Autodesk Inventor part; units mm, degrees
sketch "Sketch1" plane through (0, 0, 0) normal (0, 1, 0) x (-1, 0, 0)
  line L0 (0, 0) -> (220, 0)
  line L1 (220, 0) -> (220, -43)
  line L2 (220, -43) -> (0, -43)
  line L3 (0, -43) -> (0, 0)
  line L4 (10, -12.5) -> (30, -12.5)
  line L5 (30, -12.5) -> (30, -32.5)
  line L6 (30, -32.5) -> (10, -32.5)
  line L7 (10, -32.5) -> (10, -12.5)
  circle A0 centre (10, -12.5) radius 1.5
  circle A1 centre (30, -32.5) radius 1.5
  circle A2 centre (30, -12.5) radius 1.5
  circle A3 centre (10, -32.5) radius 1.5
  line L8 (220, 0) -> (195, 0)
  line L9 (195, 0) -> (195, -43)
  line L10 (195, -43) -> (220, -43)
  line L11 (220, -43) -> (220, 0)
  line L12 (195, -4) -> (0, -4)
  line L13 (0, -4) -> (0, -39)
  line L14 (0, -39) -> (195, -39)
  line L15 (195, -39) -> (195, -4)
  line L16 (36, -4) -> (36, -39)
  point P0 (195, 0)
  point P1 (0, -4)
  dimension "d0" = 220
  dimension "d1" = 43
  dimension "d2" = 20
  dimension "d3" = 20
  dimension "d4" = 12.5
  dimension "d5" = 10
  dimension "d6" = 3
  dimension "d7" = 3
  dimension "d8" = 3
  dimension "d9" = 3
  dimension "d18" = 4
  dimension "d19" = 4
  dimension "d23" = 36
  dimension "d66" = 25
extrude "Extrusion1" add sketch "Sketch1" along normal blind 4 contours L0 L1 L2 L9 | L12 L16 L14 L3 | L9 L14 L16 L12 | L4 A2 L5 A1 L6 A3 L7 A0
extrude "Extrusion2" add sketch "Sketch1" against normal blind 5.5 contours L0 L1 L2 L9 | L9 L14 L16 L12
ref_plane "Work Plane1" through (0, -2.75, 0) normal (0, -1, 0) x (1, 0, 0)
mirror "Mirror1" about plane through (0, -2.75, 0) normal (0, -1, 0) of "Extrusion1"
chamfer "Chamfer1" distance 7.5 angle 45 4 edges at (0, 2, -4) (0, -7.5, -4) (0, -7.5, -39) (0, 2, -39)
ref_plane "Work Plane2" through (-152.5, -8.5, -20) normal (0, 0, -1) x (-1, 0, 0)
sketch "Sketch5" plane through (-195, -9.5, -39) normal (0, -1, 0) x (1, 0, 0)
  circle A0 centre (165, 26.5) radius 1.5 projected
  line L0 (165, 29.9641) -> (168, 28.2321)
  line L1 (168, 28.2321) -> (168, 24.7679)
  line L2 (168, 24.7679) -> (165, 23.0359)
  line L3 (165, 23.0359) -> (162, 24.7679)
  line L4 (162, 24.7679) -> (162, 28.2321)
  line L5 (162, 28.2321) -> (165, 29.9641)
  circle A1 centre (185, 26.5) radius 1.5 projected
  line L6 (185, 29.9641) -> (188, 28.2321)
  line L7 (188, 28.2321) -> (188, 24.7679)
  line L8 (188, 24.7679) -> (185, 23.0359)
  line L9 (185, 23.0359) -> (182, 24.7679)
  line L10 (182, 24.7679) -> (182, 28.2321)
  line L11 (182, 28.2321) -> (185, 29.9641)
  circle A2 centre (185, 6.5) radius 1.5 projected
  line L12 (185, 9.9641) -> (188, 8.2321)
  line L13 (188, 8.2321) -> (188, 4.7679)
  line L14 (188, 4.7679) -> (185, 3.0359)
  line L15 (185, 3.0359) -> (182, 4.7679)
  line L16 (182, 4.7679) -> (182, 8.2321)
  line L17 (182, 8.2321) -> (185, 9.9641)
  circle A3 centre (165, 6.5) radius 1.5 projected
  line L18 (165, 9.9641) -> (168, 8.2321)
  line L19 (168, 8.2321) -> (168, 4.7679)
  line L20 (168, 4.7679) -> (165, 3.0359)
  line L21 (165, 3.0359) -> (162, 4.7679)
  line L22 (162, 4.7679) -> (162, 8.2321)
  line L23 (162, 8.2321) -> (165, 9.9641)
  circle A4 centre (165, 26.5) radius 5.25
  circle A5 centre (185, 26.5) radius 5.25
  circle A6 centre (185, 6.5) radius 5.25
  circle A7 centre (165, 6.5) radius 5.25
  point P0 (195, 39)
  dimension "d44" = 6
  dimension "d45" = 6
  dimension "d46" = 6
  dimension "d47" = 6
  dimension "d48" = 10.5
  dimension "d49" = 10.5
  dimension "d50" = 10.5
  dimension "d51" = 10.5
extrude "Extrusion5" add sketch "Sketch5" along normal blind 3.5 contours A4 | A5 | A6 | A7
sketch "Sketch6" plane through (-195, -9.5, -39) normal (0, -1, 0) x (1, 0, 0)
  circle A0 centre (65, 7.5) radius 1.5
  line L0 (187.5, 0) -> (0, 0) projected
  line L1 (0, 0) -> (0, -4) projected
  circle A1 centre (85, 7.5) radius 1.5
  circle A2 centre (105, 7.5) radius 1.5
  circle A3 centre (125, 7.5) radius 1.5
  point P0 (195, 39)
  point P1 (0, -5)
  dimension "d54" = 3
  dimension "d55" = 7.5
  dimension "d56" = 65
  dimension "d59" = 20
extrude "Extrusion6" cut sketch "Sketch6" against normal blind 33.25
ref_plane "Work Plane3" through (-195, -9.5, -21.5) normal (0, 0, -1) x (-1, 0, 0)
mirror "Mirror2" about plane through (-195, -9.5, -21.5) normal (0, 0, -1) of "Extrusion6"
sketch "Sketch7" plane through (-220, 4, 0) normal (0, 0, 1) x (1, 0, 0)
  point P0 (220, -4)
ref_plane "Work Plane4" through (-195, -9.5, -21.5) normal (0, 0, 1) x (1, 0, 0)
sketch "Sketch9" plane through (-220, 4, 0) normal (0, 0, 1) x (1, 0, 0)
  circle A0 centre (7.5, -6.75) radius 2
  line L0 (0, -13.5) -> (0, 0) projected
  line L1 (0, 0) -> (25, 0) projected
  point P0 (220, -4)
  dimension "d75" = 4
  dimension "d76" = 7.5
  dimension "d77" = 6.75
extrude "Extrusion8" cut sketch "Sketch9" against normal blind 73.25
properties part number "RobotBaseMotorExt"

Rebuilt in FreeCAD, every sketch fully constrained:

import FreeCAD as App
import Part
import Sketcher
Q = App.Units.Quantity


def edges_at(feature, points):
    """Names of the edges that pass closest to the given points."""
    edges = feature.Shape.Edges
    near = lambda p: min(range(len(edges)), key=lambda i: edges[i].distToShape(Part.Vertex(*p))[0])
    return sorted({f"Edge{near(p) + 1}" for p in points})


def add_polygon(sketch, points):
    """Adds a closed chain of lines whose ends are joined by coincident constraints."""
    first, n = sketch.GeometryCount, len(points)
    for a, b in zip(points, points[1:] + points[:1]):
        sketch.addGeometry(Part.LineSegment(App.Vector(*a, 0), App.Vector(*b, 0)), False)
    for i in range(n):
        sketch.addConstraint(Sketcher.Constraint("Coincident", first + i, 2, first + (i + 1) % n, 1))

doc = App.newDocument("Part")
body = doc.addObject("PartDesign::Body", "Body")

# Sketch on XZ plane
sketch1 = body.newObject("Sketcher::SketchObject", "Sketch")
sketch1.AttachmentSupport = (doc.getObject("XZ_Plane"), [""])
sketch1.MapMode = "FlatFace"
add_polygon(sketch1, [(-220, 0), (-195, 0), (-195, -4), (0, -4), (0, -39), (-195, -39), (-195, -43), (-220, -43)])  # lines 0-7
sketch1.addGeometry(Part.Circle(App.Vector(-10, -12.5, 0), App.Vector(0, 0, 1), 1.5), False)  # 8
sketch1.addGeometry(Part.Circle(App.Vector(-10, -32.5, 0), App.Vector(0, 0, 1), 1.5), False)  # 9
sketch1.addGeometry(Part.Circle(App.Vector(-30, -32.5, 0), App.Vector(0, 0, 1), 1.5), False)  # 10
sketch1.addGeometry(Part.Circle(App.Vector(-30, -12.5, 0), App.Vector(0, 0, 1), 1.5), False)  # 11
sketch1.addConstraint([
    Sketcher.Constraint("Horizontal", 0),
    Sketcher.Constraint("Vertical", 1),
    Sketcher.Constraint("Horizontal", 2),
    Sketcher.Constraint("Vertical", 3),
    Sketcher.Constraint("Horizontal", 4),
    Sketcher.Constraint("Vertical", 5),
    Sketcher.Constraint("Horizontal", 6),
    Sketcher.Constraint("Vertical", 7),
    Sketcher.Constraint("Equal", 8, 9),
    Sketcher.Constraint("Equal", 9, 10),
    Sketcher.Constraint("Equal", 10, 11),
    Sketcher.Constraint("PointOnObject", 0, 2, -1),
    Sketcher.Constraint("PointOnObject", 2, 2, -2),
    Sketcher.Constraint("Horizontal", 9, 3, 10, 3),
    Sketcher.Constraint("Horizontal", 8, 3, 11, 3),
    Sketcher.Constraint("Vertical", 8, 3, 9, 3),
    Sketcher.Constraint("Vertical", 10, 3, 11, 3),
    Sketcher.Constraint("Vertical", 1, 2, 4, 2),
    Sketcher.Constraint("Equal", 1, 5),
    Sketcher.Constraint("Diameter", 8, 3.0),
    Sketcher.Constraint("DistanceX", 0, 1, 0, 2, 25.0),
    Sketcher.Constraint("DistanceY", 1, 2, 1, 1, 4.0),
    Sketcher.Constraint("DistanceY", 7, 1, 7, 2, 43.0),
    Sketcher.Constraint("DistanceX", 8, 3, -1, 1, 10.0),
    Sketcher.Constraint("DistanceX", 6, 2, -1, 1, 220.0),
    Sketcher.Constraint("DistanceY", 9, 3, 8, 3, 20.0),
    Sketcher.Constraint("DistanceX", 10, 3, 9, 3, 20.0),
    Sketcher.Constraint("DistanceY", 8, 3, -1, 1, 12.5),
])
pad1 = body.newObject("PartDesign::Pad", "Pad")
pad1.Profile = sketch1
pad1.Length = 4
pad1.Reversed = True

# Sketch on XZ plane
sketch2 = body.newObject("Sketcher::SketchObject", "Sketch001")
sketch2.AttachmentSupport = (doc.getObject("XZ_Plane"), [""])
sketch2.MapMode = "FlatFace"
add_polygon(sketch2, [(-220, 0), (-195, 0), (-195, -4), (-36, -4), (-36, -39), (-195, -39), (-195, -43), (-220, -43)])  # lines 0-7
sketch2.addConstraint([
    Sketcher.Constraint("Horizontal", 0),
    Sketcher.Constraint("Vertical", 1),
    Sketcher.Constraint("Horizontal", 2),
    Sketcher.Constraint("Vertical", 3),
    Sketcher.Constraint("Horizontal", 4),
    Sketcher.Constraint("Vertical", 5),
    Sketcher.Constraint("Horizontal", 6),
    Sketcher.Constraint("Vertical", 7),
    Sketcher.Constraint("PointOnObject", 0, 2, -1),
    Sketcher.Constraint("Vertical", 1, 2, 4, 2),
    Sketcher.Constraint("Equal", 1, 5),
    Sketcher.Constraint("DistanceX", 0, 1, 0, 2, 25.0),
    Sketcher.Constraint("DistanceY", 1, 2, 1, 1, 4.0),
    Sketcher.Constraint("DistanceY", 7, 1, 7, 2, 43.0),
    Sketcher.Constraint("DistanceX", 2, 2, -1, 1, 36.0),
    Sketcher.Constraint("DistanceX", 6, 2, -1, 1, 220.0),
])
pad2 = body.newObject("PartDesign::Pad", "Pad001")
pad2.Profile = sketch2
pad2.Length = 5.5
doc.recompute()

datumplane = body.newObject("PartDesign::Plane", "DatumPlane")
datumplane.AttachmentSupport = (doc.getObject("XZ_Plane"), [""])
datumplane.MapMode = "FlatFace"
datumplane.AttachmentOffset = App.Placement(App.Vector(0, 0, 2.75), App.Rotation())
mirrored = body.newObject("PartDesign::Mirrored", "Mirrored")
mirrored.Originals = [pad1]
mirrored.MirrorPlane = (datumplane, [""])
body.Tip = mirrored
doc.recompute()

chamfer = body.newObject("PartDesign::Chamfer", "Chamfer")
chamfer.Base = (mirrored, edges_at(mirrored, [
    (0, 2, -4),
    (0, -7.5, -4),
    (0, -7.5, -39),
    (0, 2, -39),
]))
chamfer.Size = 7.5

# Sketch on XZ plane
sketch3 = body.newObject("Sketcher::SketchObject", "Sketch002")
sketch3.AttachmentSupport = (doc.getObject("XZ_Plane"), [""])
sketch3.MapMode = "FlatFace"
sketch3.AttachmentOffset = App.Placement(App.Vector(0, 0, 9.5), App.Rotation())
sketch3.addGeometry(Part.Circle(App.Vector(-30, -12.5, 0), App.Vector(0, 0, 1), 5.2), False)  # 0
add_polygon(sketch3, [(-33, -10.8), (-30, -9), (-27, -10.8), (-27, -14.2), (-30, -16), (-33, -14.2)])  # lines 1-6
sketch3.addGeometry(Part.Circle(App.Vector(-10, -12.5, 0), App.Vector(0, 0, 1), 5.2), False)  # 7
add_polygon(sketch3, [(-13, -10.8), (-10, -9), (-7, -10.8), (-7, -14.2), (-10, -16), (-13, -14.2)])  # lines 8-13
sketch3.addGeometry(Part.Circle(App.Vector(-10, -32.5, 0), App.Vector(0, 0, 1), 5.2), False)  # 14
add_polygon(sketch3, [(-13, -30.8), (-10, -29), (-7, -30.8), (-7, -34.2), (-10, -36), (-13, -34.2)])  # lines 15-20
sketch3.addGeometry(Part.Circle(App.Vector(-30, -32.5, 0), App.Vector(0, 0, 1), 5.2), False)  # 21
add_polygon(sketch3, [(-33, -30.8), (-30, -29), (-27, -30.8), (-27, -34.2), (-30, -36), (-33, -34.2)])  # lines 22-27
sketch3.addConstraint([
    Sketcher.Constraint("Vertical", 3),
    Sketcher.Constraint("Vertical", 6),
    Sketcher.Constraint("Vertical", 10),
    Sketcher.Constraint("Vertical", 13),
    Sketcher.Constraint("Vertical", 17),
    Sketcher.Constraint("Vertical", 20),
    Sketcher.Constraint("Vertical", 24),
    Sketcher.Constraint("Vertical", 27),
    Sketcher.Constraint("Equal", 0, 7),
    Sketcher.Constraint("Equal", 7, 14),
    Sketcher.Constraint("Equal", 14, 21),
    Sketcher.Constraint("Parallel", 1, 4),
    Sketcher.Constraint("Parallel", 2, 5),
    Sketcher.Constraint("Parallel", 4, 8),
    Sketcher.Constraint("Parallel", 5, 9),
    Sketcher.Constraint("Parallel", 8, 11),
    Sketcher.Constraint("Parallel", 9, 12),
    Sketcher.Constraint("Parallel", 11, 15),
    Sketcher.Constraint("Parallel", 12, 16),
    Sketcher.Constraint("Parallel", 15, 18),
    Sketcher.Constraint("Parallel", 16, 19),
    Sketcher.Constraint("Parallel", 18, 22),
    Sketcher.Constraint("Parallel", 19, 23),
    Sketcher.Constraint("Parallel", 22, 25),
    Sketcher.Constraint("Parallel", 23, 26),
    Sketcher.Constraint("Horizontal", 0, 3, 7, 3),
    Sketcher.Constraint("Horizontal", 14, 3, 21, 3),
    Sketcher.Constraint("Horizontal", 3, 2, 5, 2),
    Sketcher.Constraint("Horizontal", 2, 2, 6, 2),
    Sketcher.Constraint("Horizontal", 1, 2, 8, 2),
    Sketcher.Constraint("Horizontal", 6, 2, 9, 2),
    Sketcher.Constraint("Horizontal", 5, 2, 10, 2),
    Sketcher.Constraint("Horizontal", 4, 2, 11, 2),
    Sketcher.Constraint("Horizontal", 10, 2, 12, 2),
    Sketcher.Constraint("Horizontal", 17, 2, 19, 2),
    Sketcher.Constraint("Horizontal", 16, 2, 20, 2),
    Sketcher.Constraint("Horizontal", 15, 2, 22, 2),
    Sketcher.Constraint("Horizontal", 20, 2, 23, 2),
    Sketcher.Constraint("Horizontal", 19, 2, 24, 2),
    Sketcher.Constraint("Horizontal", 18, 2, 25, 2),
    Sketcher.Constraint("Horizontal", 24, 2, 26, 2),
    Sketcher.Constraint("Vertical", 7, 3, 14, 3),
    Sketcher.Constraint("Vertical", 0, 3, 21, 3),
    Sketcher.Constraint("Vertical", 21, 3, 1, 2),
    Sketcher.Constraint("Vertical", 1, 2, 4, 2),
    Sketcher.Constraint("Vertical", 14, 3, 8, 2),
    Sketcher.Constraint("Vertical", 11, 2, 15, 2),
    Sketcher.Constraint("Vertical", 10, 2, 16, 2),
    Sketcher.Constraint("Vertical", 4, 2, 22, 2),
    Sketcher.Constraint("Equal", 13, 17),
    Sketcher.Constraint("Diameter", 0, 10.5),
    Sketcher.Constraint("DistanceX", 5, 2, 3, 2, 6.0),
    Sketcher.Constraint("Angle", 1, Q("29.9993 deg")),
    Sketcher.Constraint("DistanceX", 0, 3, -1, 1, 30.0),
    Sketcher.Constraint("DistanceX", 7, 3, -1, 1, 10.0),
    Sketcher.Constraint("DistanceY", 14, 3, 7, 3, 20.0),
    Sketcher.Constraint("DistanceY", 17, 2, 10, 2, 20.0),
    Sketcher.Constraint("DistanceY", 0, 3, -1, 1, 12.5),
    Sketcher.Constraint("DistanceY", 3, 2, 3, 1, 3.4642),
    Sketcher.Constraint("DistanceY", 1, 2, -1, 1, 9.036),
])
pad3 = body.newObject("PartDesign::Pad", "Pad002")
pad3.Profile = sketch3
pad3.Length = 3.5

# Sketch on XZ plane
sketch4 = body.newObject("Sketcher::SketchObject", "Sketch003")
sketch4.AttachmentSupport = (doc.getObject("XZ_Plane"), [""])
sketch4.MapMode = "FlatFace"
sketch4.AttachmentOffset = App.Placement(App.Vector(0, 0, 9.5), App.Rotation())
sketch4.addGeometry([
    Part.Circle(App.Vector(-130, -31.5, 0), App.Vector(0, 0, 1), 1.5),
    Part.Circle(App.Vector(-110, -31.5, 0), App.Vector(0, 0, 1), 1.5),
    Part.Circle(App.Vector(-90, -31.5, 0), App.Vector(0, 0, 1), 1.5),
    Part.Circle(App.Vector(-70, -31.5, 0), App.Vector(0, 0, 1), 1.5),
], False)
sketch4.addConstraint([
    Sketcher.Constraint("Equal", 0, 1),
    Sketcher.Constraint("Equal", 1, 2),
    Sketcher.Constraint("Equal", 2, 3),
    Sketcher.Constraint("Horizontal", 0, 3, 1, 3),
    Sketcher.Constraint("Horizontal", 1, 3, 2, 3),
    Sketcher.Constraint("Horizontal", 2, 3, 3, 3),
    Sketcher.Constraint("Diameter", 0, 3.0),
    Sketcher.Constraint("DistanceX", 0, 3, 1, 3, 20.0),
    Sketcher.Constraint("DistanceX", 1, 3, 2, 3, 20.0),
    Sketcher.Constraint("DistanceX", 2, 3, 3, 3, 20.0),
    Sketcher.Constraint("DistanceX", 0, 3, -1, 1, 130.0),
    Sketcher.Constraint("DistanceY", 0, 3, -1, 1, 31.5),
])
pocket1 = body.newObject("PartDesign::Pocket", "Pocket")
pocket1.Profile = sketch4
pocket1.Length = 33.25
doc.recompute()

datumplane2 = body.newObject("PartDesign::Plane", "DatumPlane001")
datumplane2.AttachmentSupport = (doc.getObject("XY_Plane"), [""])
datumplane2.MapMode = "FlatFace"
datumplane2.AttachmentOffset = App.Placement(App.Vector(0, 0, -21.5), App.Rotation())
mirrored2 = body.newObject("PartDesign::Mirrored", "Mirrored001")
mirrored2.Originals = [pocket1]
mirrored2.MirrorPlane = (datumplane2, [""])
body.Tip = mirrored2

# Sketch on XY plane
sketch5 = body.newObject("Sketcher::SketchObject", "Sketch004")
sketch5.AttachmentSupport = (doc.getObject("XY_Plane"), [""])
sketch5.MapMode = "FlatFace"
sketch5.addGeometry(Part.Circle(App.Vector(-212.5, -2.8, 0), App.Vector(0, 0, 1), 2), False)
sketch5.addConstraint([
    Sketcher.Constraint("Diameter", 0, 4.0),
    Sketcher.Constraint("DistanceX", 0, 3, -1, 1, 212.5),
    Sketcher.Constraint("DistanceY", 0, 3, -1, 1, 2.75),
])
pocket2 = body.newObject("PartDesign::Pocket", "Pocket001")
pocket2.Profile = sketch5
pocket2.Length = 73.25

doc.recompute()
